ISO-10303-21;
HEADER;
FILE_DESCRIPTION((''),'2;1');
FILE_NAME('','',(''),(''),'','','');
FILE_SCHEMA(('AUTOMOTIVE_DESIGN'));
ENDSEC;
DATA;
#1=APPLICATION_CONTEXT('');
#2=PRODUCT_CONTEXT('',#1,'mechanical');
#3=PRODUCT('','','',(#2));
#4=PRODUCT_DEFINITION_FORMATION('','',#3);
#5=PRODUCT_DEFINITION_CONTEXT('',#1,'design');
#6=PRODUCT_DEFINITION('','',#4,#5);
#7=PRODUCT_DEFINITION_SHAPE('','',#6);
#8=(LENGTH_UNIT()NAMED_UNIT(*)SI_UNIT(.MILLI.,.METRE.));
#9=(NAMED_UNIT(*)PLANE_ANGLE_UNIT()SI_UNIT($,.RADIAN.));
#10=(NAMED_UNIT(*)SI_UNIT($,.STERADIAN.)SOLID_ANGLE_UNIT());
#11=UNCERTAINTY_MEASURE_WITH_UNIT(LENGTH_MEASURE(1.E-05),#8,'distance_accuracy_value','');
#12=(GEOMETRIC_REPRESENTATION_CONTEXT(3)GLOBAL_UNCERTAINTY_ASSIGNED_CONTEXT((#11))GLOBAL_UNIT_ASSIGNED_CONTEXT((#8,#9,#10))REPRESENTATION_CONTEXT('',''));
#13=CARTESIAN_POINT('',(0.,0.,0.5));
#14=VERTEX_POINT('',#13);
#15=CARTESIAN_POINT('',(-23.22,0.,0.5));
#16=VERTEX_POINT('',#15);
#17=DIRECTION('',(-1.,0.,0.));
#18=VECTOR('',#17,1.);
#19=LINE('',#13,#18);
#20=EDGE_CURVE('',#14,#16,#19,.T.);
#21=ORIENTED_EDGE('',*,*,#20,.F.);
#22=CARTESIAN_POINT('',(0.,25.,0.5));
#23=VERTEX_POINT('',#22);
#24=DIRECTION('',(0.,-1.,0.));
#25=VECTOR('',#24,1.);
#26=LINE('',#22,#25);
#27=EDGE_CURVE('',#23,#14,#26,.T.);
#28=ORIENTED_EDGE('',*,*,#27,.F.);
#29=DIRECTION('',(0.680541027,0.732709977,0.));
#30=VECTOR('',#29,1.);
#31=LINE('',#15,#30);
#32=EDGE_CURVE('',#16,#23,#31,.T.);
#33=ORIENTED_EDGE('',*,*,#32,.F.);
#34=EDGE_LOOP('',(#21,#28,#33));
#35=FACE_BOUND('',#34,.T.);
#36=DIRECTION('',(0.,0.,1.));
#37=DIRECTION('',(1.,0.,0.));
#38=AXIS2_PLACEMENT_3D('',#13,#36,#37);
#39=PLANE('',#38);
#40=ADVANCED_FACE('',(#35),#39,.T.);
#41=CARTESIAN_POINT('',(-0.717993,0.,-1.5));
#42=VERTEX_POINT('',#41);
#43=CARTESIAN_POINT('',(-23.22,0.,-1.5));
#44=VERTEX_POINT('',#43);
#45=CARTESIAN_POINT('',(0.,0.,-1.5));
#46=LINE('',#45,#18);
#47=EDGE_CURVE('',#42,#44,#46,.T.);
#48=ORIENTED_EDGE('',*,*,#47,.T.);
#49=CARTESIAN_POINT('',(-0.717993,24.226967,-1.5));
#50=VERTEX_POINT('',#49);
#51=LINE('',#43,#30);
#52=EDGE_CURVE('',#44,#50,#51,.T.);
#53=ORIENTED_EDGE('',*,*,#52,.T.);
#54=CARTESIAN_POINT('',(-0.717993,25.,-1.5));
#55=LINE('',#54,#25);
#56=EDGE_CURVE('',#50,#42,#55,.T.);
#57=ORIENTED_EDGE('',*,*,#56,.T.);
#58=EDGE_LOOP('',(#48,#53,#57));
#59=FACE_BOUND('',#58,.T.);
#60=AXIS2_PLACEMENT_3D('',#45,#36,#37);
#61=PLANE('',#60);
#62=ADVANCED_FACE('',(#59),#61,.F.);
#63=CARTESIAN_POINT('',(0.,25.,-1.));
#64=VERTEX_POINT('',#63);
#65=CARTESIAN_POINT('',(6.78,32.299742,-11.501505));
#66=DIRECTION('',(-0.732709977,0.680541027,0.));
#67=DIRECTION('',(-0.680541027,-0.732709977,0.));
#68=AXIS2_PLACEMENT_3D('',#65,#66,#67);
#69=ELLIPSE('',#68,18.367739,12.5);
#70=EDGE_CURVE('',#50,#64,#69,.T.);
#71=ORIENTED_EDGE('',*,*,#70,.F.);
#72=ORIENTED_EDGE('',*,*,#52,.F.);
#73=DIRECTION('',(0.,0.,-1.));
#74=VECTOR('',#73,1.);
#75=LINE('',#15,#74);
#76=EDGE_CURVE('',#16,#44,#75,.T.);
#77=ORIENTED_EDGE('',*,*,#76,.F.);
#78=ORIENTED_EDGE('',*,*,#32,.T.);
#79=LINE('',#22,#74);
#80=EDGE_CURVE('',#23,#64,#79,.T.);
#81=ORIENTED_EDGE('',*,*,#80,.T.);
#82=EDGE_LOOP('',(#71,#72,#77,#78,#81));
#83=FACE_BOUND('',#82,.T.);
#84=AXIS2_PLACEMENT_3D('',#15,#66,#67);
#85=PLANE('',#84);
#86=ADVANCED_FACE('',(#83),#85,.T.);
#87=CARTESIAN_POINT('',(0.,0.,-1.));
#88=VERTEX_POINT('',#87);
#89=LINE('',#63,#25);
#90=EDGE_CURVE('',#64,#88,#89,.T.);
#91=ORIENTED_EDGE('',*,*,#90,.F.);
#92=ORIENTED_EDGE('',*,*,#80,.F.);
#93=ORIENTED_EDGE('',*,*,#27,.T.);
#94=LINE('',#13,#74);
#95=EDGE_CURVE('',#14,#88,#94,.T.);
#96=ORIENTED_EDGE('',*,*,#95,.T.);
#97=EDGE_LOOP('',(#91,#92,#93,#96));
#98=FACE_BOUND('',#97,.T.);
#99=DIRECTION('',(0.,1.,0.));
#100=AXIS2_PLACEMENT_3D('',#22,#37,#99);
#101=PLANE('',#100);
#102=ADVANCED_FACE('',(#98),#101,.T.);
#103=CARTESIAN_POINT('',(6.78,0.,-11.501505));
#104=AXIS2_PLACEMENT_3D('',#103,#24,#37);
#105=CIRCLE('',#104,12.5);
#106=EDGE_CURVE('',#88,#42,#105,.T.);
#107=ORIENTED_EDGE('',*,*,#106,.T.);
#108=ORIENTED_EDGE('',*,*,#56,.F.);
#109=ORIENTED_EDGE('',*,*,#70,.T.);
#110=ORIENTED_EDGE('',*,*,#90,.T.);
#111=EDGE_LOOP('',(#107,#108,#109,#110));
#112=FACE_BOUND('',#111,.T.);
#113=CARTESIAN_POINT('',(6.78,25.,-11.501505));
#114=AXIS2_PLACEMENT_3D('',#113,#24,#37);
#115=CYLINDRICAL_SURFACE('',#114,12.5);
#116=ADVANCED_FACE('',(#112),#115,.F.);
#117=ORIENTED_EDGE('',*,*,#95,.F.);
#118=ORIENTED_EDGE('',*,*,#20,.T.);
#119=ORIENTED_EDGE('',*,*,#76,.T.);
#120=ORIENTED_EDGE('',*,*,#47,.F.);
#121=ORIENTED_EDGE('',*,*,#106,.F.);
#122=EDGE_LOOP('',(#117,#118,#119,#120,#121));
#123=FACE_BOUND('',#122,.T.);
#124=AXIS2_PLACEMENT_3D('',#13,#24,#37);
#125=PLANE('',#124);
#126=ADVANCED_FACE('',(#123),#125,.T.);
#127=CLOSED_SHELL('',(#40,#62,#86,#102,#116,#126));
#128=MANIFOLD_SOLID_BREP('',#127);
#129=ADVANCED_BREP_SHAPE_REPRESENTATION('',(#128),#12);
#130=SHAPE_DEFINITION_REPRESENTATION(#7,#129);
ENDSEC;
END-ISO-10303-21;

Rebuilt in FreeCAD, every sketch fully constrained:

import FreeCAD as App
import Part
import Sketcher

V = App.Vector
Q = App.Units.Quantity


def add_polygon(sketch, points):
    """Adds a closed chain of lines whose ends are joined by coincident constraints."""
    first, n = sketch.GeometryCount, len(points)
    for a, b in zip(points, points[1:] + points[:1]):
        sketch.addGeometry(Part.LineSegment(App.Vector(*a, 0), App.Vector(*b, 0)), False)
    for i in range(n):
        sketch.addConstraint(Sketcher.Constraint("Coincident", first + i, 2, first + (i + 1) % n, 1))

doc = App.newDocument("Part")
body = doc.addObject("PartDesign::Body", "Body")

# Sketch on XY plane
sketch1 = body.newObject("Sketcher::SketchObject", "Sketch")
sketch1.AttachmentSupport = (doc.getObject("XY_Plane"), [""])
sketch1.MapMode = "FlatFace"
sketch1.AttachmentOffset = App.Placement(V(0, 0, -1.5), App.Rotation())
add_polygon(sketch1, [(-23.22, 0), (0, 25), (0, 0)])  # lines 0-2
sketch1.addConstraint(Sketcher.Constraint("Vertical", 1))
sketch1.addConstraint(Sketcher.Constraint("Horizontal", 2))
sketch1.addConstraint(Sketcher.Constraint("Coincident", 1, 2, -1, 1))
sketch1.addConstraint(Sketcher.Constraint("DistanceY", 1, 2, 1, 1, Q("25 mm")))
sketch1.addConstraint(Sketcher.Constraint("DistanceX", 2, 2, 2, 1, Q("23.22 mm")))
pad1 = body.newObject("PartDesign::Pad", "Pad")
pad1.Profile = sketch1
pad1.Length = 2

# Sketch on XZ plane
sketch2 = body.newObject("Sketcher::SketchObject", "Sketch001")
sketch2.AttachmentSupport = (doc.getObject("XZ_Plane"), [""])
sketch2.MapMode = "FlatFace"
sketch2.addGeometry(Part.Circle(V(6.78, -11.501505, 0), V(0, 0, 1), 12.5), False)
sketch2.addConstraint(Sketcher.Constraint("Diameter", 0, Q("25 mm")))
sketch2.addConstraint(Sketcher.Constraint("DistanceX", -1, 1, 0, 3, Q("6.78 mm")))
sketch2.addConstraint(Sketcher.Constraint("DistanceY", 0, 3, -1, 1, Q("11.501505 mm")))
pocket1 = body.newObject("PartDesign::Pocket", "Pocket")
pocket1.Profile = sketch2
pocket1.Length = 25

doc.recompute()
